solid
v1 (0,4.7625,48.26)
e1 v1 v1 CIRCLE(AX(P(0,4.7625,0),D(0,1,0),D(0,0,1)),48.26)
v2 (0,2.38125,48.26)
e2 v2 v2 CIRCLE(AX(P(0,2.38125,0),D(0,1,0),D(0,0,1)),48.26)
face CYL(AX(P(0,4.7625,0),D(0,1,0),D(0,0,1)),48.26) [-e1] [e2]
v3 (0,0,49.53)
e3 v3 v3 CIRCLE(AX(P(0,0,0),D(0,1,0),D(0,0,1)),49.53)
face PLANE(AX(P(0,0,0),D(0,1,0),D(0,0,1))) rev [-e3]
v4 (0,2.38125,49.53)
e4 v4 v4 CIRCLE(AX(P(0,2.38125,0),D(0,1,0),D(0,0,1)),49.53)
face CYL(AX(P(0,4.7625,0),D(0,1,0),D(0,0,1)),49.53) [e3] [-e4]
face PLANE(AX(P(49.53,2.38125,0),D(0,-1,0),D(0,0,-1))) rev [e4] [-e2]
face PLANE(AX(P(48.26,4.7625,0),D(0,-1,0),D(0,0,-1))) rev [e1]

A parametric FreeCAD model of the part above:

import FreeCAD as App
import Part
import Sketcher
from FreeCAD import Vector
Q = App.Units.Quantity

doc = App.newDocument("Part")
params = doc.addObject("Spreadsheet::Sheet", "Params")
for row, (alias, value) in enumerate([
    ("sketch1_width", "1.9 in"),
    ("sketch1_width2", "1.95 in"),
    ("sketch1_height", "0.09375 in"),
    ("revolution_angle", "360 deg"),
], start=1):
    params.set(f"A{row}", alias)
    params.set(f"B{row}", "=" + value)
    params.setAlias(f"B{row}", alias)

body = doc.addObject("PartDesign::Body", "Body")

sketch1 = body.newObject("Sketcher::SketchObject", "Sketch")
sketch1.AttachmentSupport = (doc.getObject("XY_Plane"), [""])
sketch1.MapMode = "FlatFace"
sketch1.addGeometry([
    Part.LineSegment(Vector(0, 0, 0), Vector(49.5, 0, 0)),
    Part.LineSegment(Vector(49.5, 0, 0), Vector(49.5, 2.4, 0)),
    Part.LineSegment(Vector(49.5, 2.4, 0), Vector(48.3, 2.4, 0)),
    Part.LineSegment(Vector(48.3, 2.4, 0), Vector(48.3, 4.8, 0)),
    Part.LineSegment(Vector(48.3, 4.8, 0), Vector(0, 4.8, 0)),
    Part.LineSegment(Vector(0, 4.8, 0), Vector(0, 0, 0)),
], False)
sketch1.addConstraint([
    Sketcher.Constraint("Coincident", 0, 2, 1, 1),
    Sketcher.Constraint("Coincident", 1, 2, 2, 1),
    Sketcher.Constraint("Coincident", 2, 2, 3, 1),
    Sketcher.Constraint("Coincident", 3, 2, 4, 1),
    Sketcher.Constraint("Coincident", 4, 2, 5, 1),
    Sketcher.Constraint("Coincident", 5, 2, 0, 1),
    Sketcher.Constraint("Horizontal", 0),
    Sketcher.Constraint("Vertical", 1),
    Sketcher.Constraint("Horizontal", 2),
    Sketcher.Constraint("Vertical", 3),
    Sketcher.Constraint("Horizontal", 4),
    Sketcher.Constraint("Vertical", 5),
    Sketcher.Constraint("Coincident", 5, 2, -1, 1),
    Sketcher.Constraint("Equal", 1, 3),
    Sketcher.Constraint("DistanceX", 4, 2, 4, 1, Q("1.9 in")),
    Sketcher.Constraint("DistanceX", 0, 1, 0, 2, Q("1.95 in")),
    Sketcher.Constraint("DistanceY", 1, 1, 1, 2, Q("0.09375 in")),
])
sketch1.setExpression("Constraints[14]", "Params.sketch1_width")
sketch1.setExpression("Constraints[15]", "Params.sketch1_width2")
sketch1.setExpression("Constraints[16]", "Params.sketch1_height")
revolution = body.newObject("PartDesign::Revolution", "Revolution")
revolution.Profile = sketch1
revolution.ReferenceAxis = (sketch1, ["V_Axis"])
revolution.setExpression("Angle", "Params.revolution_angle")

doc.recompute()
